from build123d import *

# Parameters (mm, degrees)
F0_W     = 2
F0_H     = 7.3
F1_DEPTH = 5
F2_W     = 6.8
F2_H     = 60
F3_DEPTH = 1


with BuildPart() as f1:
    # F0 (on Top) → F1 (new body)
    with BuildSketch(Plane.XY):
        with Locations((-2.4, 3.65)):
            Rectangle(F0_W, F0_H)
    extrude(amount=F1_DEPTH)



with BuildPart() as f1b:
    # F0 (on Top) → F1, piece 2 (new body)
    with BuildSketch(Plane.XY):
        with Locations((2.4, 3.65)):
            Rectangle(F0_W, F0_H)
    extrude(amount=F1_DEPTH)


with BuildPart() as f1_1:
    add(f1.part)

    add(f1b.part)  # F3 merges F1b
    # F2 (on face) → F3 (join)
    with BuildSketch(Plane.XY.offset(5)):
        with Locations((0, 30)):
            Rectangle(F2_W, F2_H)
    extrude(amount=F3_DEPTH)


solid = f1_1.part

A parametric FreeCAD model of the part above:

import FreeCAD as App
import Part
import Sketcher
Q = App.Units.Quantity


def add_polygon(sketch, points):
    """Adds a closed chain of lines whose ends are joined by coincident constraints."""
    first, n = sketch.GeometryCount, len(points)
    for a, b in zip(points, points[1:] + points[:1]):
        sketch.addGeometry(Part.LineSegment(App.Vector(*a, 0), App.Vector(*b, 0)), False)
    for i in range(n):
        sketch.addConstraint(Sketcher.Constraint("Coincident", first + i, 2, first + (i + 1) % n, 1))

doc = App.newDocument("Part")
body = doc.addObject("PartDesign::Body", "Body")

sketch1 = doc.addObject("Sketcher::SketchObject", "Sketch")
body.addObject(sketch1)
sketch1.AttachmentSupport = (doc.XY_Plane, [""])
sketch1.MapMode = "FlatFace"
add_polygon(sketch1, [(-3.4, 7.3), (-3.4, 0), (-1.4, 0), (-1.4, 7.3)])
sketch1.addConstraint(Sketcher.Constraint("Vertical", 0))
sketch1.addConstraint(Sketcher.Constraint("Horizontal", 1))
sketch1.addConstraint(Sketcher.Constraint("Vertical", 2))
sketch1.addConstraint(Sketcher.Constraint("Horizontal", 3))
sketch1.addConstraint(Sketcher.Constraint("PointOnObject", 0, 2, -1))
sketch1.addConstraint(Sketcher.Constraint("DistanceX", 1, 1, 1, 2, Q("2 mm")))
sketch1.addConstraint(Sketcher.Constraint("DistanceY", 0, 2, 0, 1, Q("7.3 mm")))
sketch1.addConstraint(Sketcher.Constraint("DistanceX", 0, 2, -1, 1, Q("3.4 mm")))
pad1 = doc.addObject("PartDesign::Pad", "Pad")
body.addObject(pad1)
pad1.Profile = sketch1
pad1.Length = 5
body2 = doc.addObject("PartDesign::Body", "Body001")

sketch2 = doc.addObject("Sketcher::SketchObject", "Sketch001")
body2.addObject(sketch2)
sketch2.AttachmentSupport = (doc.getObject("XY_Plane001"), [""])
sketch2.MapMode = "FlatFace"
add_polygon(sketch2, [(1.4, 7.3), (1.4, 0), (3.4, 0), (3.4, 7.3)])
sketch2.addConstraint(Sketcher.Constraint("Vertical", 0))
sketch2.addConstraint(Sketcher.Constraint("Horizontal", 1))
sketch2.addConstraint(Sketcher.Constraint("Vertical", 2))
sketch2.addConstraint(Sketcher.Constraint("Horizontal", 3))
sketch2.addConstraint(Sketcher.Constraint("PointOnObject", 0, 2, -1))
sketch2.addConstraint(Sketcher.Constraint("DistanceX", 1, 1, 1, 2, Q("2 mm")))
sketch2.addConstraint(Sketcher.Constraint("DistanceY", 0, 2, 0, 1, Q("7.3 mm")))
sketch2.addConstraint(Sketcher.Constraint("DistanceX", -1, 1, 0, 2, Q("1.4 mm")))
pad2 = doc.addObject("PartDesign::Pad", "Pad001")
body2.addObject(pad2)
pad2.Profile = sketch2
pad2.Length = 5
body.AllowCompound = True
doc.recompute()

boolean = doc.addObject("PartDesign::Boolean", "Boolean")
body.addObject(boolean)
boolean.Type = "Fuse"
boolean.addObjects([body2])

sketch3 = doc.addObject("Sketcher::SketchObject", "Sketch002")
body.addObject(sketch3)
sketch3.AttachmentSupport = (doc.XY_Plane, [""])
sketch3.MapMode = "FlatFace"
sketch3.AttachmentOffset = App.Placement(App.Vector(0, 0, 5), App.Rotation())
add_polygon(sketch3, [(-3, 60), (-3, 0), (3, 0), (3, 60)])
sketch3.addConstraint(Sketcher.Constraint("Vertical", 0))
sketch3.addConstraint(Sketcher.Constraint("Horizontal", 1))
sketch3.addConstraint(Sketcher.Constraint("Vertical", 2))
sketch3.addConstraint(Sketcher.Constraint("Horizontal", 3))
sketch3.addConstraint(Sketcher.Constraint("Symmetric", 0, 2, 1, 2, -1, 1))
sketch3.addConstraint(Sketcher.Constraint("DistanceY", 0, 2, 0, 1, Q("60 mm")))
sketch3.addConstraint(Sketcher.Constraint("DistanceX", 1, 1, 1, 2, Q("6.8 mm")))
pad3 = doc.addObject("PartDesign::Pad", "Pad002")
body.addObject(pad3)
pad3.Profile = sketch3
pad3.Length = 1

doc.recompute()
